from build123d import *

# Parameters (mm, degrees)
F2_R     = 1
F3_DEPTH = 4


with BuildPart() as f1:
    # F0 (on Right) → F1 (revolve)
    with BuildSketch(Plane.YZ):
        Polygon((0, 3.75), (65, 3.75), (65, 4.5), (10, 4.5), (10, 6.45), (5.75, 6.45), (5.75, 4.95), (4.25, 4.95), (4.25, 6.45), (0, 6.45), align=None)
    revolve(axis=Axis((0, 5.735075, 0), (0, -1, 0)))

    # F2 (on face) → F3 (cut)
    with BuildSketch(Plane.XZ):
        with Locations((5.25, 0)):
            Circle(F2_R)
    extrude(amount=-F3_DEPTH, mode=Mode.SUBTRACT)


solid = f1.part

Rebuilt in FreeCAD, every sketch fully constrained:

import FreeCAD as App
import Part
import Sketcher
from FreeCAD import Vector

doc = App.newDocument("Part")
body = doc.addObject("PartDesign::Body", "Body")

# Sketch on YZ plane
sketch1 = body.newObject("Sketcher::SketchObject", "Sketch")
sketch1.AttachmentSupport = (doc.getObject("YZ_Plane"), [""])
sketch1.MapMode = "FlatFace"
sketch1.addGeometry([
    Part.LineSegment(Vector(0, 3.8, 0), Vector(65, 3.8, 0)),  # 0
    Part.LineSegment(Vector(65, 3.8, 0), Vector(65, 4.5, 0)),  # 1
    Part.LineSegment(Vector(65, 4.5, 0), Vector(10, 4.5, 0)),  # 2
    Part.LineSegment(Vector(10, 4.5, 0), Vector(10, 6.5, 0)),  # 3
    Part.LineSegment(Vector(10, 6.5, 0), Vector(5.8, 6.5, 0)),  # 4
    Part.LineSegment(Vector(5.8, 6.5, 0), Vector(5.8, 5, 0)),  # 5
    Part.LineSegment(Vector(5.8, 5, 0), Vector(4.2, 5, 0)),  # 6
    Part.LineSegment(Vector(4.2, 5, 0), Vector(4.2, 6.5, 0)),  # 7
    Part.LineSegment(Vector(4.2, 6.5, 0), Vector(0, 6.5, 0)),  # 8
    Part.LineSegment(Vector(0, 6.5, 0), Vector(0, 3.8, 0)),  # 9
], False)
sketch1.addConstraint([
    Sketcher.Constraint("Coincident", 0, 2, 1, 1),
    Sketcher.Constraint("Coincident", 1, 2, 2, 1),
    Sketcher.Constraint("Coincident", 2, 2, 3, 1),
    Sketcher.Constraint("Coincident", 3, 2, 4, 1),
    Sketcher.Constraint("Coincident", 4, 2, 5, 1),
    Sketcher.Constraint("Coincident", 5, 2, 6, 1),
    Sketcher.Constraint("Coincident", 6, 2, 7, 1),
    Sketcher.Constraint("Coincident", 7, 2, 8, 1),
    Sketcher.Constraint("Coincident", 8, 2, 9, 1),
    Sketcher.Constraint("Coincident", 9, 2, 0, 1),
    Sketcher.Constraint("Horizontal", 0),
    Sketcher.Constraint("Vertical", 1),
    Sketcher.Constraint("Horizontal", 2),
    Sketcher.Constraint("Vertical", 3),
    Sketcher.Constraint("Horizontal", 4),
    Sketcher.Constraint("Vertical", 5),
    Sketcher.Constraint("Horizontal", 6),
    Sketcher.Constraint("Vertical", 7),
    Sketcher.Constraint("Horizontal", 8),
    Sketcher.Constraint("Vertical", 9),
    Sketcher.Constraint("PointOnObject", 8, 2, -2),
    Sketcher.Constraint("Horizontal", 4, 2, 7, 2),
    Sketcher.Constraint("Equal", 4, 8),
    Sketcher.Constraint("Equal", 6, 5),
    Sketcher.Constraint("DistanceX", 0, 1, 0, 2, 65.0),
    Sketcher.Constraint("DistanceX", 2, 2, 2, 1, 55.0),
    Sketcher.Constraint("DistanceX", 6, 2, 6, 1, 1.5),
    Sketcher.Constraint("DistanceY", 9, 2, 9, 1, 2.7),
    Sketcher.Constraint("DistanceY", 1, 1, 1, 2, 0.75),
    Sketcher.Constraint("DistanceY", -1, 1, 1, 2, 4.5),
])
revolution = body.newObject("PartDesign::Revolution", "Revolution")
revolution.Profile = sketch1
revolution.ReferenceAxis = (sketch1, ["H_Axis"])
revolution.Angle = 360

# Sketch on XZ plane
sketch2 = body.newObject("Sketcher::SketchObject", "Sketch001")
sketch2.AttachmentSupport = (doc.getObject("XZ_Plane"), [""])
sketch2.MapMode = "FlatFace"
sketch2.addGeometry(Part.Circle(Vector(5.2, 0, 0), Vector(0, 0, 1), 1), False)
sketch2.addConstraint([
    Sketcher.Constraint("PointOnObject", 0, 3, -1),
    Sketcher.Constraint("Diameter", 0, 2.0),
    Sketcher.Constraint("DistanceX", -1, 1, 0, 3, 5.25),
])
pocket1 = body.newObject("PartDesign::Pocket", "Pocket")
pocket1.Profile = sketch2
pocket1.Length = 4

doc.recompute()
